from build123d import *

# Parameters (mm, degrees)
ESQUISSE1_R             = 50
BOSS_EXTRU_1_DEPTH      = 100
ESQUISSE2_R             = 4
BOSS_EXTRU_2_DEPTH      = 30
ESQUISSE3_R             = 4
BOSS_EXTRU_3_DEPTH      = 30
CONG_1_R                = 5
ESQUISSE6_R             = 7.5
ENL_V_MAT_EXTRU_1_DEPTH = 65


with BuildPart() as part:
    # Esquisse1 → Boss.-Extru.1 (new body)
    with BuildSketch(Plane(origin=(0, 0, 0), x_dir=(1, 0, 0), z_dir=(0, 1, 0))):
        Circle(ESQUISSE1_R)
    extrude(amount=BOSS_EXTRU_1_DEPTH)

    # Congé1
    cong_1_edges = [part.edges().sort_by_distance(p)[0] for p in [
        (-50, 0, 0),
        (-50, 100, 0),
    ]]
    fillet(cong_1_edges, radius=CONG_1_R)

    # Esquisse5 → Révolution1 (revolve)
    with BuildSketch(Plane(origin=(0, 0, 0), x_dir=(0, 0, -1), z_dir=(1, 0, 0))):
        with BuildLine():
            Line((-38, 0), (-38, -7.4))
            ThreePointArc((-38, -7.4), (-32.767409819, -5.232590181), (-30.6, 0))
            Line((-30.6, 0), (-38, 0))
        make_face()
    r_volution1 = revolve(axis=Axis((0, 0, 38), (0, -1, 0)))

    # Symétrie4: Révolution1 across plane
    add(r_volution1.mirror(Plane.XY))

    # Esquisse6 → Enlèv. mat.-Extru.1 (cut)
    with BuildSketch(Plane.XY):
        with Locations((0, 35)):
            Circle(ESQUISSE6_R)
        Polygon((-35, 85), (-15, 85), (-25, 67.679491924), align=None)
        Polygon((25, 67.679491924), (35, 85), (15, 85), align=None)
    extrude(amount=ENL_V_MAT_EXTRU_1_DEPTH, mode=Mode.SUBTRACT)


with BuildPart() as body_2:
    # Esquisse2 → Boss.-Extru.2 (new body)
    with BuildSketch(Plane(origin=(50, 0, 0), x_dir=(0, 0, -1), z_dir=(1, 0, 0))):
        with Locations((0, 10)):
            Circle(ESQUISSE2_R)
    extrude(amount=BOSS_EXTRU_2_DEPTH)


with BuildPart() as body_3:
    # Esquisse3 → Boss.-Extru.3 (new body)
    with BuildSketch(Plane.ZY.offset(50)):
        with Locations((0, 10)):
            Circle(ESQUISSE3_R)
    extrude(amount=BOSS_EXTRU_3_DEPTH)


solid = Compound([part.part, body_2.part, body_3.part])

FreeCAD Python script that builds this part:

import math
import FreeCAD as App
import Part
import Sketcher

V = App.Vector
Q = App.Units.Quantity


def edges_at(feature, points):
    """Names of the edges that pass closest to the given points."""
    edges = feature.Shape.Edges
    near = lambda p: min(range(len(edges)), key=lambda i: edges[i].distToShape(Part.Vertex(*p))[0])
    return sorted({f"Edge{near(p) + 1}" for p in points})

doc = App.newDocument("Part")
body = doc.addObject("PartDesign::Body", "Body")

sketch1 = doc.addObject("Sketcher::SketchObject", "Sketch")
body.addObject(sketch1)
sketch1.AttachmentSupport = (doc.XZ_Plane, [""])
sketch1.MapMode = "FlatFace"
sketch1.addGeometry(Part.Circle(V(0, 0, 0), V(0, 0, 1), 50), False)
sketch1.addConstraint(Sketcher.Constraint("Coincident", 0, 3, -1, 1))
sketch1.addConstraint(Sketcher.Constraint("Diameter", 0, 100.0))
pad1 = doc.addObject("PartDesign::Pad", "Pad")
body.addObject(pad1)
pad1.Profile = sketch1
pad1.Length = 100
pad1.Reversed = True
doc.recompute()

fillet = doc.addObject("PartDesign::Fillet", "Fillet")
body.addObject(fillet)
fillet.Base = (pad1, edges_at(pad1, [(-50, 0, 0), (-50, 100, 0)]))
fillet.Radius = 5

sketch2 = doc.addObject("Sketcher::SketchObject", "Sketch001")
body.addObject(sketch2)
sketch2.AttachmentSupport = (doc.YZ_Plane, [""])
sketch2.MapMode = "FlatFace"
sketch2.addGeometry(Part.LineSegment(V(0, 38, 0), V(-7, 38, 0)), False)
sketch2.addGeometry(Part.ArcOfCircle(Part.Circle(V(0, 38, 0), V(0, 0, 1), 7), math.radians(180), math.radians(270)), False)
sketch2.addGeometry(Part.LineSegment(V(0, 31, 0), V(0, 38, 0)), False)
sketch2.addGeometry(Part.LineSegment(V(0, 38, 0), V(-7, 38, 0)), True)
sketch2.addConstraint(Sketcher.Constraint("Coincident", 0, 2, 1, 1))
sketch2.addConstraint(Sketcher.Constraint("Coincident", 1, 2, 2, 1))
sketch2.addConstraint(Sketcher.Constraint("Coincident", 2, 2, 0, 1))
sketch2.addConstraint(Sketcher.Constraint("Horizontal", 0))
sketch2.addConstraint(Sketcher.Constraint("Vertical", 2))
sketch2.addConstraint(Sketcher.Constraint("Horizontal", 3))
sketch2.addConstraint(Sketcher.Constraint("Coincident", 2, 2, 1, 3))
sketch2.addConstraint(Sketcher.Constraint("Coincident", 3, 1, 1, 3))
sketch2.addConstraint(Sketcher.Constraint("PointOnObject", 1, 3, -2))
sketch2.addConstraint(Sketcher.Constraint("Equal", 0, 3))
sketch2.addConstraint(Sketcher.Constraint("Radius", 1, 7.4))
sketch2.addConstraint(Sketcher.Constraint("DistanceY", -1, 1, 1, 3, 38.0))
revolution = doc.addObject("PartDesign::Revolution", "Revolution")
body.addObject(revolution)
revolution.Profile = sketch2
revolution.ReferenceAxis = (sketch2, ["Axis0"])
revolution.Angle = 360
doc.recompute()

mirrored = doc.addObject("PartDesign::Mirrored", "Mirrored")
body.addObject(mirrored)
mirrored.Originals = [revolution]
mirrored.MirrorPlane = (doc.XY_Plane, [""])
body.Tip = mirrored

sketch3 = doc.addObject("Sketcher::SketchObject", "Sketch002")
body.addObject(sketch3)
sketch3.AttachmentSupport = (doc.XY_Plane, [""])
sketch3.MapMode = "FlatFace"
sketch3.addGeometry(Part.Circle(V(0, 35, 0), V(0, 0, 1), 8), False)
sketch3.addGeometry(Part.LineSegment(V(-15, 85, 0), V(-35, 85, 0)), False)
sketch3.addGeometry(Part.LineSegment(V(-35, 85, 0), V(-25, 68, 0)), False)
sketch3.addGeometry(Part.LineSegment(V(-25, 68, 0), V(-15, 85, 0)), False)
sketch3.addGeometry(Part.LineSegment(V(25, 68, 0), V(35, 85, 0)), False)
sketch3.addGeometry(Part.LineSegment(V(35, 85, 0), V(15, 85, 0)), False)
sketch3.addGeometry(Part.LineSegment(V(15, 85, 0), V(25, 68, 0)), False)
sketch3.addConstraint(Sketcher.Constraint("Coincident", 1, 2, 2, 1))
sketch3.addConstraint(Sketcher.Constraint("Coincident", 2, 2, 3, 1))
sketch3.addConstraint(Sketcher.Constraint("Coincident", 3, 2, 1, 1))
sketch3.addConstraint(Sketcher.Constraint("Coincident", 4, 2, 5, 1))
sketch3.addConstraint(Sketcher.Constraint("Coincident", 5, 2, 6, 1))
sketch3.addConstraint(Sketcher.Constraint("Coincident", 6, 2, 4, 1))
sketch3.addConstraint(Sketcher.Constraint("Horizontal", 1))
sketch3.addConstraint(Sketcher.Constraint("Horizontal", 5))
sketch3.addConstraint(Sketcher.Constraint("Symmetric", 1, 2, 4, 2, -2))
sketch3.addConstraint(Sketcher.Constraint("Symmetric", 2, 2, 6, 2, -2))
sketch3.addConstraint(Sketcher.Constraint("PointOnObject", 0, 3, -2))
sketch3.addConstraint(Sketcher.Constraint("Parallel", 3, 4))
sketch3.addConstraint(Sketcher.Constraint("Parallel", 2, 6))
sketch3.addConstraint(Sketcher.Constraint("Diameter", 0, 15.0))
sketch3.addConstraint(Sketcher.Constraint("DistanceX", 1, 2, 1, 1, 20.0))
sketch3.addConstraint(Sketcher.Constraint("Angle", 2, Q("-60 deg")))
sketch3.addConstraint(Sketcher.Constraint("DistanceY", -1, 1, 0, 3, 35.0))
sketch3.addConstraint(Sketcher.Constraint("DistanceX", 1, 2, -1, 1, 35.0))
sketch3.addConstraint(Sketcher.Constraint("DistanceY", -1, 1, 1, 2, 85.0))
pocket1 = doc.addObject("PartDesign::Pocket", "Pocket")
body.addObject(pocket1)
pocket1.Profile = sketch3
pocket1.Length = 65
pocket1.Reversed = True
body2 = doc.addObject("PartDesign::Body", "Body001")

sketch4 = doc.addObject("Sketcher::SketchObject", "Sketch003")
body2.addObject(sketch4)
sketch4.AttachmentSupport = (doc.getObject("YZ_Plane001"), [""])
sketch4.MapMode = "FlatFace"
sketch4.AttachmentOffset = App.Placement(V(0, 0, 50), App.Rotation())
sketch4.addGeometry(Part.Circle(V(10, 0, 0), V(0, 0, 1), 4), False)
sketch4.addConstraint(Sketcher.Constraint("PointOnObject", 0, 3, -1))
sketch4.addConstraint(Sketcher.Constraint("Diameter", 0, 8.0))
sketch4.addConstraint(Sketcher.Constraint("DistanceX", -1, 1, 0, 3, 10.0))
pad2 = doc.addObject("PartDesign::Pad", "Pad001")
body2.addObject(pad2)
pad2.Profile = sketch4
pad2.Length = 30
body3 = doc.addObject("PartDesign::Body", "Body002")

sketch5 = doc.addObject("Sketcher::SketchObject", "Sketch004")
body3.addObject(sketch5)
sketch5.AttachmentSupport = (doc.getObject("YZ_Plane002"), [""])
sketch5.MapMode = "FlatFace"
sketch5.AttachmentOffset = App.Placement(V(0, 0, -50), App.Rotation())
sketch5.addGeometry(Part.Circle(V(10, 0, 0), V(0, 0, 1), 4), False)
sketch5.addConstraint(Sketcher.Constraint("PointOnObject", 0, 3, -1))
sketch5.addConstraint(Sketcher.Constraint("Diameter", 0, 8.0))
sketch5.addConstraint(Sketcher.Constraint("DistanceX", -1, 1, 0, 3, 10.0))
pad3 = doc.addObject("PartDesign::Pad", "Pad002")
body3.addObject(pad3)
pad3.Profile = sketch5
pad3.Length = 30
pad3.Reversed = True

doc.recompute()
